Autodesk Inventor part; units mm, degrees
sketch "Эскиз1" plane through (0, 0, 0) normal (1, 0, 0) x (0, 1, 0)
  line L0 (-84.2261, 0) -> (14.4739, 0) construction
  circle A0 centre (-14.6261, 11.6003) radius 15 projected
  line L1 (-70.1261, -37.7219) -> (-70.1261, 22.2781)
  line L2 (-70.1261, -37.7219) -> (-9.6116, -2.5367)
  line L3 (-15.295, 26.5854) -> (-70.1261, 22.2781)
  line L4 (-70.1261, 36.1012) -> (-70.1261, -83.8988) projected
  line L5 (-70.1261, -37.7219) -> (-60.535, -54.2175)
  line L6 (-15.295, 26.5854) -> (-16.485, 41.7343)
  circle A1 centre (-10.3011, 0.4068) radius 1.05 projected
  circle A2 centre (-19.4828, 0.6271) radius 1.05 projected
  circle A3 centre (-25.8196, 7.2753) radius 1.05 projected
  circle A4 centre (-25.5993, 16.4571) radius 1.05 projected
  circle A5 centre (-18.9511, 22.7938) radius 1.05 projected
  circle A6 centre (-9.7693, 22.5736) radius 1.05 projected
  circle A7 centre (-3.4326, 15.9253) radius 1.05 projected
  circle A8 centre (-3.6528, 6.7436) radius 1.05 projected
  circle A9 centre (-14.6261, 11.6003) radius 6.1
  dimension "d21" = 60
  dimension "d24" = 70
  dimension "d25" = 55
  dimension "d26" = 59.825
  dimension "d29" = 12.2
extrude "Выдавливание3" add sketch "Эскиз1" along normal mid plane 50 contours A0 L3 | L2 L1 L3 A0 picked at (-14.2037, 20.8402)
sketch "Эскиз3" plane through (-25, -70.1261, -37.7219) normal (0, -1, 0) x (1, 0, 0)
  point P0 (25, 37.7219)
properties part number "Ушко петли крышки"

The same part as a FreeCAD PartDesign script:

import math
import FreeCAD as App
import Part
import Sketcher

V = App.Vector

doc = App.newDocument("Part")
params = doc.addObject("Spreadsheet::Sheet", "Params")
for row, (alias, value) in enumerate([
    ("sketch1_diameter", "12.2 mm"),
    ("sketch1_height", "60 mm"),
    ("sketch1_length", "55 mm"),
    ("sketch1_length2", "70 mm"),
    ("sketch1_radius", "15 mm"),
    ("pad1_length", "50 mm"),
], start=1):
    params.set(f"A{row}", alias)
    params.set(f"B{row}", "=" + value)
    params.setAlias(f"B{row}", alias)

body = doc.addObject("PartDesign::Body", "Body")

sketch1 = body.newObject("Sketcher::SketchObject", "Sketch")
sketch1.AttachmentSupport = (doc.getObject("YZ_Plane"), [""])
sketch1.MapMode = "FlatFace"
sketch1.addGeometry(Part.ArcOfCircle(Part.Circle(V(-14.6, 11.6, 0), V(0, 0, 1), 15), math.radians(-70), math.radians(93)), False)
sketch1.addGeometry(Part.LineSegment(V(-15.3, 26.6, 0), V(-70.1, 22.3, 0)), False)
sketch1.addGeometry(Part.LineSegment(V(-70.1, 22.3, 0), V(-70.1, -37.7, 0)), False)
sketch1.addGeometry(Part.LineSegment(V(-70.1, -37.7, 0), V(-9.6, -2.5, 0)), False)
sketch1.addGeometry(Part.Circle(V(-19.5, 0.6, 0), V(0, 0, 1), 1.1), False)
sketch1.addGeometry(Part.Circle(V(-25.8, 7.3, 0), V(0, 0, 1), 1.1), False)
sketch1.addGeometry(Part.Circle(V(-10.3, 0.4, 0), V(0, 0, 1), 1.1), False)
sketch1.addGeometry(Part.Circle(V(-3.7, 6.7, 0), V(0, 0, 1), 1.1), False)
sketch1.addGeometry(Part.Circle(V(-25.6, 16.5, 0), V(0, 0, 1), 1.1), False)
sketch1.addGeometry(Part.Circle(V(-19, 22.8, 0), V(0, 0, 1), 1.1), False)
sketch1.addGeometry(Part.Circle(V(-14.6, 11.6, 0), V(0, 0, 1), 6.1), False)
sketch1.addGeometry(Part.Circle(V(-3.4, 15.9, 0), V(0, 0, 1), 1.1), False)
sketch1.addGeometry(Part.Circle(V(-9.8, 22.6, 0), V(0, 0, 1), 1.1), False)
sketch1.addConstraint(Sketcher.Constraint("Coincident", 0, 2, 1, 1))
sketch1.addConstraint(Sketcher.Constraint("Coincident", 1, 2, 2, 1))
sketch1.addConstraint(Sketcher.Constraint("Coincident", 2, 2, 3, 1))
sketch1.addConstraint(Sketcher.Constraint("Coincident", 3, 2, 0, 1))
sketch1.addConstraint(Sketcher.Constraint("Vertical", 2))
sketch1.addConstraint(Sketcher.Constraint("Coincident", 10, 3, 0, 3))
sketch1.addConstraint(Sketcher.Constraint("Equal", 4, 5))
sketch1.addConstraint(Sketcher.Constraint("Equal", 5, 6))
sketch1.addConstraint(Sketcher.Constraint("Equal", 6, 7))
sketch1.addConstraint(Sketcher.Constraint("Equal", 7, 8))
sketch1.addConstraint(Sketcher.Constraint("Equal", 8, 9))
sketch1.addConstraint(Sketcher.Constraint("Equal", 9, 11))
sketch1.addConstraint(Sketcher.Constraint("Equal", 11, 12))
sketch1.addConstraint(Sketcher.Constraint("Diameter", 10, 12.2))
sketch1.addConstraint(Sketcher.Constraint("DistanceY", 2, 2, 2, 1, 60.0))
sketch1.addConstraint(Sketcher.Constraint("Distance", 1, 55.0))
sketch1.addConstraint(Sketcher.Constraint("Distance", 3, 70.0))
sketch1.addConstraint(Sketcher.Constraint("Radius", 0, 15.0))
sketch1.addConstraint(Sketcher.Constraint("Diameter", 4, 2.1))
sketch1.addConstraint(Sketcher.Constraint("DistanceX", 2, 2, 6, 3, 59.825))
sketch1.addConstraint(Sketcher.Constraint("DistanceX", 4, 3, 7, 3, 15.83))
sketch1.addConstraint(Sketcher.Constraint("DistanceY", 4, 3, 8, 3, 15.83))
sketch1.addConstraint(Sketcher.Constraint("DistanceY", 7, 3, 12, 3, 15.83))
sketch1.addConstraint(Sketcher.Constraint("DistanceX", 0, 3, -1, 1, 14.626))
sketch1.addConstraint(Sketcher.Constraint("DistanceY", -1, 1, 4, 3, 0.627))
sketch1.addConstraint(Sketcher.Constraint("DistanceX", 6, 3, -1, 1, 10.301))
sketch1.addConstraint(Sketcher.Constraint("DistanceX", 9, 3, -1, 1, 18.951))
sketch1.addConstraint(Sketcher.Constraint("DistanceX", 0, 2, -1, 1, 15.295))
sketch1.addConstraint(Sketcher.Constraint("DistanceY", -1, 1, 1, 2, 22.278))
sketch1.addConstraint(Sketcher.Constraint("DistanceY", 5, 3, 0, 3, 4.325))
sketch1.addConstraint(Sketcher.Constraint("DistanceY", 0, 3, 11, 3, 4.325))
sketch1.addConstraint(Sketcher.Constraint("DistanceX", 4, 3, -1, 1, 19.4828))
sketch1.addConstraint(Sketcher.Constraint("DistanceX", 5, 3, -1, 1, 25.8196))
sketch1.addConstraint(Sketcher.Constraint("DistanceY", -1, 1, 6, 3, 0.4068))
sketch1.addConstraint(Sketcher.Constraint("DistanceY", -1, 1, 7, 3, 6.7436))
sketch1.addConstraint(Sketcher.Constraint("DistanceX", 8, 3, -1, 1, 25.5993))
sketch1.addConstraint(Sketcher.Constraint("DistanceY", -1, 1, 9, 3, 22.7938))
sketch1.addConstraint(Sketcher.Constraint("DistanceX", 11, 3, -1, 1, 3.4326))
sketch1.addConstraint(Sketcher.Constraint("DistanceX", 12, 3, -1, 1, 9.7693))
sketch1.setExpression("Constraints[13]", "Params.sketch1_diameter")
sketch1.setExpression("Constraints[14]", "Params.sketch1_height")
sketch1.setExpression("Constraints[15]", "Params.sketch1_length")
sketch1.setExpression("Constraints[16]", "Params.sketch1_length2")
sketch1.setExpression("Constraints[17]", "Params.sketch1_radius")
pad1 = body.newObject("PartDesign::Pad", "Pad")
pad1.Profile = sketch1
pad1.setExpression("Length", "Params.pad1_length")
pad1.Midplane = True

doc.recompute()
